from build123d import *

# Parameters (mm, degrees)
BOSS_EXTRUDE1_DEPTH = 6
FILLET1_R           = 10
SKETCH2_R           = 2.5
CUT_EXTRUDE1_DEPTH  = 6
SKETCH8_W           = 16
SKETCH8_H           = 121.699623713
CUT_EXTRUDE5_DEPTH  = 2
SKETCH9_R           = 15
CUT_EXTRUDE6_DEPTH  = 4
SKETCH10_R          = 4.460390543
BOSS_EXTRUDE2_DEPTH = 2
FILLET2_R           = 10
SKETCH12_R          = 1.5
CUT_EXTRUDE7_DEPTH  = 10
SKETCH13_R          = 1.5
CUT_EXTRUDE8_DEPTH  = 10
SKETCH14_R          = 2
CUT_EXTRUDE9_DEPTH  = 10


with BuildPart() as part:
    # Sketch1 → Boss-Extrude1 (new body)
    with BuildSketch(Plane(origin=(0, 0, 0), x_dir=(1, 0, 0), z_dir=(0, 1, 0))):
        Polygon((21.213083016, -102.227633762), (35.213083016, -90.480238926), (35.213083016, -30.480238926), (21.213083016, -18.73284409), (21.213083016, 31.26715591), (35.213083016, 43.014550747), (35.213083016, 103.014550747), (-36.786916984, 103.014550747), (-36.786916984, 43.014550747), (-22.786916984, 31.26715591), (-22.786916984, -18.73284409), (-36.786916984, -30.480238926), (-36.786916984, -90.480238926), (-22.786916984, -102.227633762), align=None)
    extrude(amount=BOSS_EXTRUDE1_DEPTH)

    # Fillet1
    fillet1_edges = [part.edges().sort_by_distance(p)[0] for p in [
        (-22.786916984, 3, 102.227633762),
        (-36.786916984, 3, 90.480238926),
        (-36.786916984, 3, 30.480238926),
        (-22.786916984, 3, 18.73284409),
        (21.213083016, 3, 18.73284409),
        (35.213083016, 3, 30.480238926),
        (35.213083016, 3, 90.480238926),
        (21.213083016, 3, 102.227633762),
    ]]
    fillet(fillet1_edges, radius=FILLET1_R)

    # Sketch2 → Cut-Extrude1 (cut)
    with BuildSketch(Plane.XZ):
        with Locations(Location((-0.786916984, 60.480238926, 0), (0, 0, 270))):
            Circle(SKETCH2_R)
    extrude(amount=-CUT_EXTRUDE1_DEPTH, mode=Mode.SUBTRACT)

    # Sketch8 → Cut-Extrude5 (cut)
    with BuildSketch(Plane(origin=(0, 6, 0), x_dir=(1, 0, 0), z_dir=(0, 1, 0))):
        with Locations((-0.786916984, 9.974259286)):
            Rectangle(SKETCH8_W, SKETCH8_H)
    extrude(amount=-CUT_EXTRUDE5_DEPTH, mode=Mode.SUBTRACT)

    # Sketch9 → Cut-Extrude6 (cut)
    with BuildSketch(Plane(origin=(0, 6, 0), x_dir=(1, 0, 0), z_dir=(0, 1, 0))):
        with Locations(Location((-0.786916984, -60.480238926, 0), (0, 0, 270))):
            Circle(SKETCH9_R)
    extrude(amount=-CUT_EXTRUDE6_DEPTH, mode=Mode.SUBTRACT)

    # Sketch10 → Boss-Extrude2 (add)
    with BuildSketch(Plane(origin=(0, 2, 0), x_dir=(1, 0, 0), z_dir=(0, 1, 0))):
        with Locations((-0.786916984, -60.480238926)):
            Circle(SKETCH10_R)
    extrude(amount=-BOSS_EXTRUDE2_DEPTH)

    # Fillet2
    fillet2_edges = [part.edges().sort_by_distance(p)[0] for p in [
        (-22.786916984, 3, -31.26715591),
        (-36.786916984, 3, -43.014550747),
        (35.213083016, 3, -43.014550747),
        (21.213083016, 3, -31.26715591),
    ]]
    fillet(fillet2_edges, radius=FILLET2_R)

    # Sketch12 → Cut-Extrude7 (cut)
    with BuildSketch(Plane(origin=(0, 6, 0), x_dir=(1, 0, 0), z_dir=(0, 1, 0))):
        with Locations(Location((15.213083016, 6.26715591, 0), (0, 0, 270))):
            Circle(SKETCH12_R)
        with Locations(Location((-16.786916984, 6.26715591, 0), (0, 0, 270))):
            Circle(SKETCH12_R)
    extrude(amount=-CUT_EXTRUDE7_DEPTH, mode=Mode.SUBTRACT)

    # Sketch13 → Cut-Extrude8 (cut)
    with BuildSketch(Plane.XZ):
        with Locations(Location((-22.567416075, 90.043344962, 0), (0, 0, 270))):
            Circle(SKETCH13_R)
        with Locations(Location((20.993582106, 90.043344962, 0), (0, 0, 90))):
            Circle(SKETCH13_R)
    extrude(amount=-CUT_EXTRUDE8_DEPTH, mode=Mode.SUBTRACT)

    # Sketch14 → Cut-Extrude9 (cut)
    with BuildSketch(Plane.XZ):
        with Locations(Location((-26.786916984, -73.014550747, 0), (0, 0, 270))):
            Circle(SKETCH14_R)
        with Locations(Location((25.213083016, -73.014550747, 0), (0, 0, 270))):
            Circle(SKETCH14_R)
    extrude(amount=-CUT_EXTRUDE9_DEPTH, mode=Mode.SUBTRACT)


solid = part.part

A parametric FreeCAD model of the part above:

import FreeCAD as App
import Part
import Sketcher

V = App.Vector
Q = App.Units.Quantity


def edges_at(feature, points):
    """Names of the edges that pass closest to the given points."""
    edges = feature.Shape.Edges
    near = lambda p: min(range(len(edges)), key=lambda i: edges[i].distToShape(Part.Vertex(*p))[0])
    return sorted({f"Edge{near(p) + 1}" for p in points})


def add_polygon(sketch, points):
    """Adds a closed chain of lines whose ends are joined by coincident constraints."""
    first, n = sketch.GeometryCount, len(points)
    for a, b in zip(points, points[1:] + points[:1]):
        sketch.addGeometry(Part.LineSegment(App.Vector(*a, 0), App.Vector(*b, 0)), False)
    for i in range(n):
        sketch.addConstraint(Sketcher.Constraint("Coincident", first + i, 2, first + (i + 1) % n, 1))

doc = App.newDocument("Part")
body = doc.addObject("PartDesign::Body", "Body")

# Sketch on XZ plane
sketch1 = body.newObject("Sketcher::SketchObject", "Sketch")
sketch1.AttachmentSupport = (doc.getObject("XZ_Plane"), [""])
sketch1.MapMode = "FlatFace"
add_polygon(sketch1, [(21, 102), (35, 90), (35, 30), (21, 19), (21, -31), (35, -43), (35, -103), (-37, -103), (-37, -43), (-23, -31), (-23, 19), (-37, 30), (-37, 90), (-23, 102)])  # lines 0-13
sketch1.addConstraint(Sketcher.Constraint("Vertical", 1))
sketch1.addConstraint(Sketcher.Constraint("Vertical", 3))
sketch1.addConstraint(Sketcher.Constraint("Vertical", 5))
sketch1.addConstraint(Sketcher.Constraint("Horizontal", 6))
sketch1.addConstraint(Sketcher.Constraint("Vertical", 7))
sketch1.addConstraint(Sketcher.Constraint("Vertical", 9))
sketch1.addConstraint(Sketcher.Constraint("Vertical", 11))
sketch1.addConstraint(Sketcher.Constraint("Horizontal", 13))
sketch1.addConstraint(Sketcher.Constraint("Parallel", 0, 4))
sketch1.addConstraint(Sketcher.Constraint("Parallel", 2, 8))
sketch1.addConstraint(Sketcher.Constraint("Parallel", 4, 10))
sketch1.addConstraint(Sketcher.Constraint("Parallel", 8, 12))
sketch1.addConstraint(Sketcher.Constraint("Horizontal", 4, 2, 7, 2))
sketch1.addConstraint(Sketcher.Constraint("Horizontal", 3, 2, 8, 2))
sketch1.addConstraint(Sketcher.Constraint("Horizontal", 2, 2, 9, 2))
sketch1.addConstraint(Sketcher.Constraint("Horizontal", 1, 2, 10, 2))
sketch1.addConstraint(Sketcher.Constraint("Horizontal", 0, 2, 11, 2))
sketch1.addConstraint(Sketcher.Constraint("Vertical", 1, 2, 4, 2))
sketch1.addConstraint(Sketcher.Constraint("Vertical", 7, 2, 10, 2))
sketch1.addConstraint(Sketcher.Constraint("Vertical", 9, 2, 12, 2))
sketch1.addConstraint(Sketcher.Constraint("Equal", 1, 5))
sketch1.addConstraint(Sketcher.Constraint("DistanceX", 6, 2, 6, 1, 72.0))
sketch1.addConstraint(Sketcher.Constraint("DistanceX", 13, 1, 13, 2, 44.0))
sketch1.addConstraint(Sketcher.Constraint("DistanceY", 1, 2, 1, 1, 60.0))
sketch1.addConstraint(Sketcher.Constraint("DistanceY", 3, 2, 3, 1, 50.0))
sketch1.addConstraint(Sketcher.Constraint("Angle", 0, Q("-40 deg")))
sketch1.addConstraint(Sketcher.Constraint("DistanceY", -1, 1, 0, 2, 90.480239))
sketch1.addConstraint(Sketcher.Constraint("DistanceX", -1, 1, 0, 2, 35.213083))
pad1 = body.newObject("PartDesign::Pad", "Pad")
pad1.Profile = sketch1
pad1.Length = 6
pad1.Reversed = True
doc.recompute()

fillet = body.newObject("PartDesign::Fillet", "Fillet")
fillet.Base = (pad1, edges_at(pad1, [
    (-22.787, 3, 102.228),
    (-36.787, 3, 90.48),
    (-36.787, 3, 30.48),
    (-22.787, 3, 18.733),
    (21.213, 3, 18.733),
    (35.213, 3, 30.48),
    (35.213, 3, 90.48),
    (21.213, 3, 102.228),
]))
fillet.Radius = 10

# Sketch on XZ plane
sketch2 = body.newObject("Sketcher::SketchObject", "Sketch001")
sketch2.AttachmentSupport = (doc.getObject("XZ_Plane"), [""])
sketch2.MapMode = "FlatFace"
sketch2.addGeometry(Part.Circle(V(-0.8, 60.5, 0), V(0, 0, 1), 2.5), False)
sketch2.addConstraint(Sketcher.Constraint("Diameter", 0, 5.0))
sketch2.addConstraint(Sketcher.Constraint("DistanceY", -1, 1, 0, 3, 60.480239))
sketch2.addConstraint(Sketcher.Constraint("DistanceX", 0, 3, -1, 1, 0.786917))
pocket1 = body.newObject("PartDesign::Pocket", "Pocket")
pocket1.Profile = sketch2
pocket1.Length = 6

# Sketch on XZ plane
sketch3 = body.newObject("Sketcher::SketchObject", "Sketch002")
sketch3.AttachmentSupport = (doc.getObject("XZ_Plane"), [""])
sketch3.MapMode = "FlatFace"
sketch3.AttachmentOffset = App.Placement(V(0, 0, -6), App.Rotation())
add_polygon(sketch3, [(-9, -71), (-9, 51), (7, 51), (7, -71)])  # lines 0-3
sketch3.addConstraint(Sketcher.Constraint("Vertical", 0))
sketch3.addConstraint(Sketcher.Constraint("Horizontal", 1))
sketch3.addConstraint(Sketcher.Constraint("Vertical", 2))
sketch3.addConstraint(Sketcher.Constraint("Horizontal", 3))
sketch3.addConstraint(Sketcher.Constraint("DistanceX", 1, 1, 1, 2, 16.0))
sketch3.addConstraint(Sketcher.Constraint("DistanceY", 0, 1, 0, 2, 121.699624))
sketch3.addConstraint(Sketcher.Constraint("DistanceY", 2, 2, -1, 1, 70.824071))
sketch3.addConstraint(Sketcher.Constraint("DistanceX", 0, 2, -1, 1, 8.786917))
pocket2 = body.newObject("PartDesign::Pocket", "Pocket001")
pocket2.Profile = sketch3
pocket2.Length = 2
pocket2.Reversed = True

# Sketch on XZ plane
sketch4 = body.newObject("Sketcher::SketchObject", "Sketch003")
sketch4.AttachmentSupport = (doc.getObject("XZ_Plane"), [""])
sketch4.MapMode = "FlatFace"
sketch4.AttachmentOffset = App.Placement(V(0, 0, -6), App.Rotation())
sketch4.addGeometry(Part.Circle(V(-1, 60, 0), V(0, 0, 1), 15), False)
sketch4.addConstraint(Sketcher.Constraint("Diameter", 0, 30.0))
sketch4.addConstraint(Sketcher.Constraint("DistanceY", -1, 1, 0, 3, 60.480239))
sketch4.addConstraint(Sketcher.Constraint("DistanceX", 0, 3, -1, 1, 0.786917))
pocket3 = body.newObject("PartDesign::Pocket", "Pocket002")
pocket3.Profile = sketch4
pocket3.Length = 4
pocket3.Reversed = True

# Sketch on XZ plane
sketch5 = body.newObject("Sketcher::SketchObject", "Sketch004")
sketch5.AttachmentSupport = (doc.getObject("XZ_Plane"), [""])
sketch5.MapMode = "FlatFace"
sketch5.AttachmentOffset = App.Placement(V(0, 0, -2), App.Rotation())
sketch5.addGeometry(Part.Circle(V(-0.8, 60.5, 0), V(0, 0, 1), 4.5), False)
sketch5.addConstraint(Sketcher.Constraint("Diameter", 0, 8.920781))
sketch5.addConstraint(Sketcher.Constraint("DistanceY", -1, 1, 0, 3, 60.480239))
sketch5.addConstraint(Sketcher.Constraint("DistanceX", 0, 3, -1, 1, 0.786917))
pad2 = body.newObject("PartDesign::Pad", "Pad001")
pad2.Profile = sketch5
pad2.Length = 2
doc.recompute()

fillet2 = body.newObject("PartDesign::Fillet", "Fillet001")
fillet2.Base = (pad2, edges_at(pad2, [
    (-22.787, 3, -31.267),
    (-36.787, 3, -43.015),
    (35.213, 3, -43.015),
    (21.213, 3, -31.267),
]))
fillet2.Radius = 10

# Sketch on XZ plane
sketch6 = body.newObject("Sketcher::SketchObject", "Sketch005")
sketch6.AttachmentSupport = (doc.getObject("XZ_Plane"), [""])
sketch6.MapMode = "FlatFace"
sketch6.AttachmentOffset = App.Placement(V(0, 0, -6), App.Rotation())
sketch6.addGeometry(Part.Circle(V(15.2, -6.3, 0), V(0, 0, 1), 1.5), False)
sketch6.addGeometry(Part.Circle(V(-16.8, -6.3, 0), V(0, 0, 1), 1.5), False)
sketch6.addConstraint(Sketcher.Constraint("Equal", 0, 1))
sketch6.addConstraint(Sketcher.Constraint("Horizontal", 0, 3, 1, 3))
sketch6.addConstraint(Sketcher.Constraint("Diameter", 0, 3.0))
sketch6.addConstraint(Sketcher.Constraint("DistanceX", 1, 3, 0, 3, 32.0))
sketch6.addConstraint(Sketcher.Constraint("DistanceX", -1, 1, 0, 3, 15.213083))
sketch6.addConstraint(Sketcher.Constraint("DistanceY", 0, 3, -1, 1, 6.267156))
pocket4 = body.newObject("PartDesign::Pocket", "Pocket003")
pocket4.Profile = sketch6
pocket4.Length = 10
pocket4.Reversed = True

# Sketch on XZ plane
sketch7 = body.newObject("Sketcher::SketchObject", "Sketch006")
sketch7.AttachmentSupport = (doc.getObject("XZ_Plane"), [""])
sketch7.MapMode = "FlatFace"
sketch7.addGeometry(Part.Circle(V(-22.6, 90, 0), V(0, 0, 1), 1.5), False)
sketch7.addGeometry(Part.Circle(V(21, 90, 0), V(0, 0, 1), 1.5), False)
sketch7.addConstraint(Sketcher.Constraint("Equal", 0, 1))
sketch7.addConstraint(Sketcher.Constraint("Horizontal", 0, 3, 1, 3))
sketch7.addConstraint(Sketcher.Constraint("Diameter", 0, 3.0))
sketch7.addConstraint(Sketcher.Constraint("DistanceX", 0, 3, 1, 3, 43.560998))
sketch7.addConstraint(Sketcher.Constraint("DistanceX", 0, 3, -1, 1, 22.567416))
sketch7.addConstraint(Sketcher.Constraint("DistanceY", -1, 1, 0, 3, 90.043345))
pocket5 = body.newObject("PartDesign::Pocket", "Pocket004")
pocket5.Profile = sketch7
pocket5.Length = 10

# Sketch on XZ plane
sketch8 = body.newObject("Sketcher::SketchObject", "Sketch007")
sketch8.AttachmentSupport = (doc.getObject("XZ_Plane"), [""])
sketch8.MapMode = "FlatFace"
sketch8.addGeometry(Part.Circle(V(-26.8, -73, 0), V(0, 0, 1), 2), False)
sketch8.addGeometry(Part.Circle(V(25.2, -73, 0), V(0, 0, 1), 2), False)
sketch8.addConstraint(Sketcher.Constraint("Equal", 0, 1))
sketch8.addConstraint(Sketcher.Constraint("Horizontal", 0, 3, 1, 3))
sketch8.addConstraint(Sketcher.Constraint("Diameter", 0, 4.0))
sketch8.addConstraint(Sketcher.Constraint("DistanceX", 0, 3, 1, 3, 52.0))
sketch8.addConstraint(Sketcher.Constraint("DistanceY", 0, 3, -1, 1, 73.014551))
sketch8.addConstraint(Sketcher.Constraint("DistanceX", 0, 3, -1, 1, 26.786917))
pocket6 = body.newObject("PartDesign::Pocket", "Pocket005")
pocket6.Profile = sketch8
pocket6.Length = 10

doc.recompute()
